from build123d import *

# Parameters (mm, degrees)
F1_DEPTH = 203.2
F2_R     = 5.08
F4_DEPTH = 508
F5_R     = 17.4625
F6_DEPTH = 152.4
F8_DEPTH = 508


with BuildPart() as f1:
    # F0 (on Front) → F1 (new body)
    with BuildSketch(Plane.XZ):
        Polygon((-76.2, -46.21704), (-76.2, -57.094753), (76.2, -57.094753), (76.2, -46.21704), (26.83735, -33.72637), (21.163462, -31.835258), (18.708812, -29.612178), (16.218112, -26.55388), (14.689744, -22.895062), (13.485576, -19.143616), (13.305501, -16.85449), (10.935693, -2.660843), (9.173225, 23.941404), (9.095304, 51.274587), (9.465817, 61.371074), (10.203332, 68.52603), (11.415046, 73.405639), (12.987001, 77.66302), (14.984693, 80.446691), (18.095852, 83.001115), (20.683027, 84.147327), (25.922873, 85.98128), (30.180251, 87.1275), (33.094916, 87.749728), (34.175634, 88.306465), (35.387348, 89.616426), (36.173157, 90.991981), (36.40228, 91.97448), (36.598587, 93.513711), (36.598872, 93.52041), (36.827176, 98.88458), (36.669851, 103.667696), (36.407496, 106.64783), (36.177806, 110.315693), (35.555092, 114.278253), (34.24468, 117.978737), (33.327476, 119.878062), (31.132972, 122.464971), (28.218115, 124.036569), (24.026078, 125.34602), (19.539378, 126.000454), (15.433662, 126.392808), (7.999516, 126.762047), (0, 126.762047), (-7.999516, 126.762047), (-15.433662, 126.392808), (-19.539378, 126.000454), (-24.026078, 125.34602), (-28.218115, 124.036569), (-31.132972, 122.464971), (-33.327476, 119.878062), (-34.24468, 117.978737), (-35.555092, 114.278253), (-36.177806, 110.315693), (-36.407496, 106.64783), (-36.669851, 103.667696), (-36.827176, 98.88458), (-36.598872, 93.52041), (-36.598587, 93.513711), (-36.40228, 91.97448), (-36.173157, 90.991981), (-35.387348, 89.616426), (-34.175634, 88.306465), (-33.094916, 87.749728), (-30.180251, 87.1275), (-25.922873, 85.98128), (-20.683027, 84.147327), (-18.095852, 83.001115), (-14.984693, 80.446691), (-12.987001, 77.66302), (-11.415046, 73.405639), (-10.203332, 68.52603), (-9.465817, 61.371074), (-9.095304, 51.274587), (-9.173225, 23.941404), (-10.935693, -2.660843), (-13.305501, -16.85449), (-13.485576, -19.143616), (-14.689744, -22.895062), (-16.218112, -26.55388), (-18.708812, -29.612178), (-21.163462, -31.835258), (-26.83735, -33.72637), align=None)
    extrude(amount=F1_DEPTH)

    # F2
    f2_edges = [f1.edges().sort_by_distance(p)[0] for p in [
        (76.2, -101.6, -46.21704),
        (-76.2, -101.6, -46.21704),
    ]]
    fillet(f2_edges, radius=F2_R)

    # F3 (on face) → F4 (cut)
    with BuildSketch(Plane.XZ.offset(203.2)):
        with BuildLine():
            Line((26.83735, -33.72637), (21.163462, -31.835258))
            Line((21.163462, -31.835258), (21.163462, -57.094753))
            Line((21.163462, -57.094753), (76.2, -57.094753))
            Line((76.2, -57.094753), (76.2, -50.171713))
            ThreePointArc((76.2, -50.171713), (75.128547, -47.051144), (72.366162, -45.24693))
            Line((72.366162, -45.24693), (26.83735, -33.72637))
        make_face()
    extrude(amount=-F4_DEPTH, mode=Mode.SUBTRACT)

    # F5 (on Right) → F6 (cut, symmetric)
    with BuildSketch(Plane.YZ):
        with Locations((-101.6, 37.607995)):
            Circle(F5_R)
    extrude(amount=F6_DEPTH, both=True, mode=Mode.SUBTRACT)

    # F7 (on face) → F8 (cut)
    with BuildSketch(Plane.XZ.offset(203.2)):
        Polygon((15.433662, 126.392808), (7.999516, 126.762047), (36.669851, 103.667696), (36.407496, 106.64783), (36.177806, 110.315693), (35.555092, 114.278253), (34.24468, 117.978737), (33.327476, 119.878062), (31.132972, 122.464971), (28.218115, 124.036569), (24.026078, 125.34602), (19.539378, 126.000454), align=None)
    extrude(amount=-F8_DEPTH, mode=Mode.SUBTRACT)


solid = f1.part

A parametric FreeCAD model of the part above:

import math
import FreeCAD as App
import Part
import Sketcher
from FreeCAD import Vector
Q = App.Units.Quantity


def edges_at(feature, points):
    """Names of the edges that pass closest to the given points."""
    edges = feature.Shape.Edges
    near = lambda p: min(range(len(edges)), key=lambda i: edges[i].distToShape(Part.Vertex(*p))[0])
    return sorted({f"Edge{near(p) + 1}" for p in points})

doc = App.newDocument("Part")
body = doc.addObject("PartDesign::Body", "Body")

# Sketch on XZ plane
sketch1 = doc.addObject("Sketcher::SketchObject", "Sketch")
body.addObject(sketch1)
sketch1.AttachmentSupport = (doc.XZ_Plane, [""])
sketch1.MapMode = "FlatFace"
sketch1.addGeometry([
    Part.LineSegment(Vector(-76.2, -46.21704, 0), Vector(-76.2, -57.094753, 0)),  # 0
    Part.LineSegment(Vector(-76.2, -57.094753, 0), Vector(76.2, -57.094753, 0)),  # 1
    Part.LineSegment(Vector(76.2, -57.094753, 0), Vector(76.2, -46.21704, 0)),  # 2
    Part.LineSegment(Vector(76.2, -46.21704, 0), Vector(26.83735, -33.72637, 0)),  # 3
    Part.LineSegment(Vector(26.83735, -33.72637, 0), Vector(21.163462, -31.835258, 0)),  # 4
    Part.LineSegment(Vector(21.163462, -31.835258, 0), Vector(18.708812, -29.612178, 0)),  # 5
    Part.LineSegment(Vector(18.708812, -29.612178, 0), Vector(16.218112, -26.55388, 0)),  # 6
    Part.LineSegment(Vector(16.218112, -26.55388, 0), Vector(14.689744, -22.895062, 0)),  # 7
    Part.LineSegment(Vector(14.689744, -22.895062, 0), Vector(13.485576, -19.143616, 0)),  # 8
    Part.LineSegment(Vector(13.485576, -19.143616, 0), Vector(13.305501, -16.85449, 0)),  # 9
    Part.LineSegment(Vector(13.305501, -16.85449, 0), Vector(10.935693, -2.660843, 0)),  # 10
    Part.LineSegment(Vector(10.935693, -2.660843, 0), Vector(9.173225, 23.941404, 0)),  # 11
    Part.LineSegment(Vector(9.173225, 23.941404, 0), Vector(9.095304, 51.274587, 0)),  # 12
    Part.LineSegment(Vector(9.095304, 51.274587, 0), Vector(9.465817, 61.371074, 0)),  # 13
    Part.LineSegment(Vector(9.465817, 61.371074, 0), Vector(10.203332, 68.52603, 0)),  # 14
    Part.LineSegment(Vector(10.203332, 68.52603, 0), Vector(11.415046, 73.405639, 0)),  # 15
    Part.LineSegment(Vector(11.415046, 73.405639, 0), Vector(12.987001, 77.66302, 0)),  # 16
    Part.LineSegment(Vector(12.987001, 77.66302, 0), Vector(14.984693, 80.446691, 0)),  # 17
    Part.LineSegment(Vector(14.984693, 80.446691, 0), Vector(18.095852, 83.001115, 0)),  # 18
    Part.LineSegment(Vector(18.095852, 83.001115, 0), Vector(20.683027, 84.147327, 0)),  # 19
    Part.LineSegment(Vector(20.683027, 84.147327, 0), Vector(25.922873, 85.98128, 0)),  # 20
    Part.LineSegment(Vector(25.922873, 85.98128, 0), Vector(30.180251, 87.1275, 0)),  # 21
    Part.LineSegment(Vector(30.180251, 87.1275, 0), Vector(33.094916, 87.749728, 0)),  # 22
    Part.LineSegment(Vector(33.094916, 87.749728, 0), Vector(34.175634, 88.306465, 0)),  # 23
    Part.LineSegment(Vector(34.175634, 88.306465, 0), Vector(35.387348, 89.616426, 0)),  # 24
    Part.LineSegment(Vector(35.387348, 89.616426, 0), Vector(36.173157, 90.991981, 0)),  # 25
    Part.LineSegment(Vector(36.173157, 90.991981, 0), Vector(36.40228, 91.97448, 0)),  # 26
    Part.LineSegment(Vector(36.40228, 91.97448, 0), Vector(36.598587, 93.513711, 0)),  # 27
    Part.LineSegment(Vector(36.598587, 93.513711, 0), Vector(36.598872, 93.52041, 0)),  # 28
    Part.LineSegment(Vector(36.598872, 93.52041, 0), Vector(36.827176, 98.88458, 0)),  # 29
    Part.LineSegment(Vector(36.827176, 98.88458, 0), Vector(36.669851, 103.667696, 0)),  # 30
    Part.LineSegment(Vector(36.669851, 103.667696, 0), Vector(36.407496, 106.64783, 0)),  # 31
    Part.LineSegment(Vector(36.407496, 106.64783, 0), Vector(36.177806, 110.315693, 0)),  # 32
    Part.LineSegment(Vector(36.177806, 110.315693, 0), Vector(35.555092, 114.278253, 0)),  # 33
    Part.LineSegment(Vector(35.555092, 114.278253, 0), Vector(34.24468, 117.978737, 0)),  # 34
    Part.LineSegment(Vector(34.24468, 117.978737, 0), Vector(33.327476, 119.878062, 0)),  # 35
    Part.LineSegment(Vector(33.327476, 119.878062, 0), Vector(31.132972, 122.464971, 0)),  # 36
    Part.LineSegment(Vector(31.132972, 122.464971, 0), Vector(28.218115, 124.036569, 0)),  # 37
    Part.LineSegment(Vector(28.218115, 124.036569, 0), Vector(24.026078, 125.34602, 0)),  # 38
    Part.LineSegment(Vector(24.026078, 125.34602, 0), Vector(19.539378, 126.000454, 0)),  # 39
    Part.LineSegment(Vector(19.539378, 126.000454, 0), Vector(15.433662, 126.392808, 0)),  # 40
    Part.LineSegment(Vector(15.433662, 126.392808, 0), Vector(7.999516, 126.762047, 0)),  # 41
    Part.LineSegment(Vector(7.999516, 126.762047, 0), Vector(-7.999516, 126.762047, 0)),  # 42
    Part.LineSegment(Vector(-7.999516, 126.762047, 0), Vector(-15.433662, 126.392808, 0)),  # 43
    Part.LineSegment(Vector(-15.433662, 126.392808, 0), Vector(-19.539378, 126.000454, 0)),  # 44
    Part.LineSegment(Vector(-19.539378, 126.000454, 0), Vector(-24.026078, 125.34602, 0)),  # 45
    Part.LineSegment(Vector(-24.026078, 125.34602, 0), Vector(-28.218115, 124.036569, 0)),  # 46
    Part.LineSegment(Vector(-28.218115, 124.036569, 0), Vector(-31.132972, 122.464971, 0)),  # 47
    Part.LineSegment(Vector(-31.132972, 122.464971, 0), Vector(-33.327476, 119.878062, 0)),  # 48
    Part.LineSegment(Vector(-33.327476, 119.878062, 0), Vector(-34.24468, 117.978737, 0)),  # 49
    Part.LineSegment(Vector(-34.24468, 117.978737, 0), Vector(-35.555092, 114.278253, 0)),  # 50
    Part.LineSegment(Vector(-35.555092, 114.278253, 0), Vector(-36.177806, 110.315693, 0)),  # 51
    Part.LineSegment(Vector(-36.177806, 110.315693, 0), Vector(-36.407496, 106.64783, 0)),  # 52
    Part.LineSegment(Vector(-36.407496, 106.64783, 0), Vector(-36.669851, 103.667696, 0)),  # 53
    Part.LineSegment(Vector(-36.669851, 103.667696, 0), Vector(-36.827176, 98.88458, 0)),  # 54
    Part.LineSegment(Vector(-36.827176, 98.88458, 0), Vector(-36.598872, 93.52041, 0)),  # 55
    Part.LineSegment(Vector(-36.598872, 93.52041, 0), Vector(-36.598587, 93.513711, 0)),  # 56
    Part.LineSegment(Vector(-36.598587, 93.513711, 0), Vector(-36.40228, 91.97448, 0)),  # 57
    Part.LineSegment(Vector(-36.40228, 91.97448, 0), Vector(-36.173157, 90.991981, 0)),  # 58
    Part.LineSegment(Vector(-36.173157, 90.991981, 0), Vector(-35.387348, 89.616426, 0)),  # 59
    Part.LineSegment(Vector(-35.387348, 89.616426, 0), Vector(-34.175634, 88.306465, 0)),  # 60
    Part.LineSegment(Vector(-34.175634, 88.306465, 0), Vector(-33.094916, 87.749728, 0)),  # 61
    Part.LineSegment(Vector(-33.094916, 87.749728, 0), Vector(-30.180251, 87.1275, 0)),  # 62
    Part.LineSegment(Vector(-30.180251, 87.1275, 0), Vector(-25.922873, 85.98128, 0)),  # 63
    Part.LineSegment(Vector(-25.922873, 85.98128, 0), Vector(-20.683027, 84.147327, 0)),  # 64
    Part.LineSegment(Vector(-20.683027, 84.147327, 0), Vector(-18.095852, 83.001115, 0)),  # 65
    Part.LineSegment(Vector(-18.095852, 83.001115, 0), Vector(-14.984693, 80.446691, 0)),  # 66
    Part.LineSegment(Vector(-14.984693, 80.446691, 0), Vector(-12.987001, 77.66302, 0)),  # 67
    Part.LineSegment(Vector(-12.987001, 77.66302, 0), Vector(-11.415046, 73.405639, 0)),  # 68
    Part.LineSegment(Vector(-11.415046, 73.405639, 0), Vector(-10.203332, 68.52603, 0)),  # 69
    Part.LineSegment(Vector(-10.203332, 68.52603, 0), Vector(-9.465817, 61.371074, 0)),  # 70
    Part.LineSegment(Vector(-9.465817, 61.371074, 0), Vector(-9.095304, 51.274587, 0)),  # 71
    Part.LineSegment(Vector(-9.095304, 51.274587, 0), Vector(-9.173225, 23.941404, 0)),  # 72
    Part.LineSegment(Vector(-9.173225, 23.941404, 0), Vector(-10.935693, -2.660843, 0)),  # 73
    Part.LineSegment(Vector(-10.935693, -2.660843, 0), Vector(-13.305501, -16.85449, 0)),  # 74
    Part.LineSegment(Vector(-13.305501, -16.85449, 0), Vector(-13.485576, -19.143616, 0)),  # 75
    Part.LineSegment(Vector(-13.485576, -19.143616, 0), Vector(-14.689744, -22.895062, 0)),  # 76
    Part.LineSegment(Vector(-14.689744, -22.895062, 0), Vector(-16.218112, -26.55388, 0)),  # 77
    Part.LineSegment(Vector(-16.218112, -26.55388, 0), Vector(-18.708812, -29.612178, 0)),  # 78
    Part.LineSegment(Vector(-18.708812, -29.612178, 0), Vector(-21.163462, -31.835258, 0)),  # 79
    Part.LineSegment(Vector(-21.163462, -31.835258, 0), Vector(-26.83735, -33.72637, 0)),  # 80
    Part.LineSegment(Vector(-26.83735, -33.72637, 0), Vector(-76.2, -46.21704, 0)),  # 81
], False)
sketch1.addConstraint([
    Sketcher.Constraint("Coincident", 0, 2, 1, 1),
    Sketcher.Constraint("Coincident", 1, 2, 2, 1),
    Sketcher.Constraint("Coincident", 2, 2, 3, 1),
    Sketcher.Constraint("Coincident", 3, 2, 4, 1),
    Sketcher.Constraint("Coincident", 4, 2, 5, 1),
    Sketcher.Constraint("Coincident", 5, 2, 6, 1),
    Sketcher.Constraint("Coincident", 6, 2, 7, 1),
    Sketcher.Constraint("Coincident", 7, 2, 8, 1),
    Sketcher.Constraint("Coincident", 8, 2, 9, 1),
    Sketcher.Constraint("Coincident", 9, 2, 10, 1),
    Sketcher.Constraint("Coincident", 10, 2, 11, 1),
    Sketcher.Constraint("Coincident", 11, 2, 12, 1),
    Sketcher.Constraint("Coincident", 12, 2, 13, 1),
    Sketcher.Constraint("Coincident", 13, 2, 14, 1),
    Sketcher.Constraint("Coincident", 14, 2, 15, 1),
    Sketcher.Constraint("Coincident", 15, 2, 16, 1),
    Sketcher.Constraint("Coincident", 16, 2, 17, 1),
    Sketcher.Constraint("Coincident", 17, 2, 18, 1),
    Sketcher.Constraint("Coincident", 18, 2, 19, 1),
    Sketcher.Constraint("Coincident", 19, 2, 20, 1),
    Sketcher.Constraint("Coincident", 20, 2, 21, 1),
    Sketcher.Constraint("Coincident", 21, 2, 22, 1),
    Sketcher.Constraint("Coincident", 22, 2, 23, 1),
    Sketcher.Constraint("Coincident", 23, 2, 24, 1),
    Sketcher.Constraint("Coincident", 24, 2, 25, 1),
    Sketcher.Constraint("Coincident", 25, 2, 26, 1),
    Sketcher.Constraint("Coincident", 26, 2, 27, 1),
    Sketcher.Constraint("Coincident", 27, 2, 28, 1),
    Sketcher.Constraint("Coincident", 28, 2, 29, 1),
    Sketcher.Constraint("Coincident", 29, 2, 30, 1),
    Sketcher.Constraint("Coincident", 30, 2, 31, 1),
    Sketcher.Constraint("Coincident", 31, 2, 32, 1),
    Sketcher.Constraint("Coincident", 32, 2, 33, 1),
    Sketcher.Constraint("Coincident", 33, 2, 34, 1),
    Sketcher.Constraint("Coincident", 34, 2, 35, 1),
    Sketcher.Constraint("Coincident", 35, 2, 36, 1),
    Sketcher.Constraint("Coincident", 36, 2, 37, 1),
    Sketcher.Constraint("Coincident", 37, 2, 38, 1),
    Sketcher.Constraint("Coincident", 38, 2, 39, 1),
    Sketcher.Constraint("Coincident", 39, 2, 40, 1),
    Sketcher.Constraint("Coincident", 40, 2, 41, 1),
    Sketcher.Constraint("Coincident", 41, 2, 42, 1),
    Sketcher.Constraint("Coincident", 42, 2, 43, 1),
    Sketcher.Constraint("Coincident", 43, 2, 44, 1),
    Sketcher.Constraint("Coincident", 44, 2, 45, 1),
    Sketcher.Constraint("Coincident", 45, 2, 46, 1),
    Sketcher.Constraint("Coincident", 46, 2, 47, 1),
    Sketcher.Constraint("Coincident", 47, 2, 48, 1),
    Sketcher.Constraint("Coincident", 48, 2, 49, 1),
    Sketcher.Constraint("Coincident", 49, 2, 50, 1),
    Sketcher.Constraint("Coincident", 50, 2, 51, 1),
    Sketcher.Constraint("Coincident", 51, 2, 52, 1),
    Sketcher.Constraint("Coincident", 52, 2, 53, 1),
    Sketcher.Constraint("Coincident", 53, 2, 54, 1),
    Sketcher.Constraint("Coincident", 54, 2, 55, 1),
    Sketcher.Constraint("Coincident", 55, 2, 56, 1),
    Sketcher.Constraint("Coincident", 56, 2, 57, 1),
    Sketcher.Constraint("Coincident", 57, 2, 58, 1),
    Sketcher.Constraint("Coincident", 58, 2, 59, 1),
    Sketcher.Constraint("Coincident", 59, 2, 60, 1),
    Sketcher.Constraint("Coincident", 60, 2, 61, 1),
    Sketcher.Constraint("Coincident", 61, 2, 62, 1),
    Sketcher.Constraint("Coincident", 62, 2, 63, 1),
    Sketcher.Constraint("Coincident", 63, 2, 64, 1),
    Sketcher.Constraint("Coincident", 64, 2, 65, 1),
    Sketcher.Constraint("Coincident", 65, 2, 66, 1),
    Sketcher.Constraint("Coincident", 66, 2, 67, 1),
    Sketcher.Constraint("Coincident", 67, 2, 68, 1),
    Sketcher.Constraint("Coincident", 68, 2, 69, 1),
    Sketcher.Constraint("Coincident", 69, 2, 70, 1),
    Sketcher.Constraint("Coincident", 70, 2, 71, 1),
    Sketcher.Constraint("Coincident", 71, 2, 72, 1),
    Sketcher.Constraint("Coincident", 72, 2, 73, 1),
    Sketcher.Constraint("Coincident", 73, 2, 74, 1),
    Sketcher.Constraint("Coincident", 74, 2, 75, 1),
    Sketcher.Constraint("Coincident", 75, 2, 76, 1),
    Sketcher.Constraint("Coincident", 76, 2, 77, 1),
    Sketcher.Constraint("Coincident", 77, 2, 78, 1),
    Sketcher.Constraint("Coincident", 78, 2, 79, 1),
    Sketcher.Constraint("Coincident", 79, 2, 80, 1),
    Sketcher.Constraint("Coincident", 80, 2, 81, 1),
    Sketcher.Constraint("Coincident", 81, 2, 0, 1),
    Sketcher.Constraint("Vertical", 0),
    Sketcher.Constraint("Horizontal", 1),
    Sketcher.Constraint("Vertical", 2),
    Sketcher.Constraint("Horizontal", 42),
    Sketcher.Constraint("Symmetric", 40, 2, 43, 2, -2),
    Sketcher.Constraint("Symmetric", 39, 2, 44, 2, -2),
    Sketcher.Constraint("Symmetric", 38, 2, 45, 2, -2),
    Sketcher.Constraint("Symmetric", 37, 2, 46, 2, -2),
    Sketcher.Constraint("Symmetric", 36, 2, 47, 2, -2),
    Sketcher.Constraint("Symmetric", 35, 2, 48, 2, -2),
    Sketcher.Constraint("Symmetric", 34, 2, 49, 2, -2),
    Sketcher.Constraint("Symmetric", 33, 2, 50, 2, -2),
    Sketcher.Constraint("Symmetric", 32, 2, 51, 2, -2),
    Sketcher.Constraint("Symmetric", 31, 2, 52, 2, -2),
    Sketcher.Constraint("Symmetric", 30, 2, 53, 2, -2),
    Sketcher.Constraint("Symmetric", 29, 2, 54, 2, -2),
    Sketcher.Constraint("Symmetric", 28, 2, 55, 2, -2),
    Sketcher.Constraint("Symmetric", 27, 2, 56, 2, -2),
    Sketcher.Constraint("Symmetric", 26, 2, 57, 2, -2),
    Sketcher.Constraint("Symmetric", 25, 2, 58, 2, -2),
    Sketcher.Constraint("Symmetric", 24, 2, 59, 2, -2),
    Sketcher.Constraint("Symmetric", 23, 2, 60, 2, -2),
    Sketcher.Constraint("Symmetric", 22, 2, 61, 2, -2),
    Sketcher.Constraint("Symmetric", 21, 2, 62, 2, -2),
    Sketcher.Constraint("Symmetric", 20, 2, 63, 2, -2),
    Sketcher.Constraint("Symmetric", 19, 2, 64, 2, -2),
    Sketcher.Constraint("Symmetric", 18, 2, 65, 2, -2),
    Sketcher.Constraint("Symmetric", 17, 2, 66, 2, -2),
    Sketcher.Constraint("Symmetric", 16, 2, 67, 2, -2),
    Sketcher.Constraint("Symmetric", 15, 2, 68, 2, -2),
    Sketcher.Constraint("Symmetric", 14, 2, 69, 2, -2),
    Sketcher.Constraint("Symmetric", 13, 2, 70, 2, -2),
    Sketcher.Constraint("Symmetric", 12, 2, 71, 2, -2),
    Sketcher.Constraint("Symmetric", 11, 2, 72, 2, -2),
    Sketcher.Constraint("Symmetric", 10, 2, 73, 2, -2),
    Sketcher.Constraint("Symmetric", 9, 2, 74, 2, -2),
    Sketcher.Constraint("Symmetric", 8, 2, 75, 2, -2),
    Sketcher.Constraint("Symmetric", 7, 2, 76, 2, -2),
    Sketcher.Constraint("Symmetric", 6, 2, 77, 2, -2),
    Sketcher.Constraint("Symmetric", 5, 2, 78, 2, -2),
    Sketcher.Constraint("Symmetric", 4, 2, 79, 2, -2),
    Sketcher.Constraint("Symmetric", 3, 2, 80, 2, -2),
    Sketcher.Constraint("Symmetric", 2, 2, 81, 2, -2),
    Sketcher.Constraint("Equal", 41, 43),
    Sketcher.Constraint("DistanceX", 1, 1, 1, 2, Q("6 in")),
    Sketcher.Constraint("Angle", 3, Q("165.800001 deg")),
    Sketcher.Constraint("Distance", 27, Q("1.551699 mm")),
    Sketcher.Constraint("DistanceX", -1, 1, 9, 2, Q("13.305501 mm")),
    Sketcher.Constraint("DistanceX", -1, 1, 16, 2, Q("12.987001 mm")),
    Sketcher.Constraint("DistanceY", -1, 1, 21, 2, Q("87.1275 mm")),
    Sketcher.Constraint("Distance", 8, Q("3.939971 mm")),
    Sketcher.Constraint("Distance", 10, Q("14.390122 mm")),
    Sketcher.Constraint("Distance", 16, Q("4.538319 mm")),
    Sketcher.Constraint("Distance", 17, Q("3.42631 mm")),
    Sketcher.Constraint("Distance", 20, Q("5.55152 mm")),
    Sketcher.Constraint("Distance", 21, Q("4.408978 mm")),
    Sketcher.Constraint("Distance", 26, Q("1.008862 mm")),
    Sketcher.Constraint("Distance", 31, Q("2.99166 mm")),
    Sketcher.Constraint("Distance", 33, Q("4.011191 mm")),
    Sketcher.Constraint("Distance", 38, Q("4.391792 mm")),
    Sketcher.Constraint("Distance", 40, Q("4.124421 mm")),
    Sketcher.Constraint("Distance", 41, Q("7.44331 mm")),
    Sketcher.Constraint("DistanceX", 42, 2, 42, 1, Q("15.999032 mm")),
    Sketcher.Constraint("DistanceY", 0, 2, 0, 1, Q("10.877713 mm")),
    Sketcher.Constraint("DistanceY", 2, 2, -1, 1, Q("46.21704 mm")),
    Sketcher.Constraint("DistanceX", -1, 1, 3, 2, Q("26.83735 mm")),
    Sketcher.Constraint("DistanceX", -1, 1, 4, 2, Q("21.163462 mm")),
    Sketcher.Constraint("DistanceY", 5, 2, -1, 1, Q("29.612178 mm")),
    Sketcher.Constraint("DistanceY", 6, 2, -1, 1, Q("26.55388 mm")),
    Sketcher.Constraint("DistanceY", 7, 2, -1, 1, Q("22.895062 mm")),
    Sketcher.Constraint("DistanceY", 9, 2, -1, 1, Q("16.85449 mm")),
    Sketcher.Constraint("DistanceY", -1, 1, 14, 2, Q("68.52603 mm")),
    Sketcher.Constraint("DistanceY", -1, 1, 15, 2, Q("73.405639 mm")),
    Sketcher.Constraint("DistanceY", -1, 1, 16, 2, Q("77.66302 mm")),
    Sketcher.Constraint("DistanceY", -1, 1, 17, 2, Q("80.446691 mm")),
    Sketcher.Constraint("DistanceY", -1, 1, 20, 2, Q("85.98128 mm")),
    Sketcher.Constraint("DistanceX", -1, 1, 21, 2, Q("30.180251 mm")),
    Sketcher.Constraint("DistanceY", -1, 1, 22, 2, Q("87.749728 mm")),
    Sketcher.Constraint("DistanceX", -1, 1, 24, 2, Q("35.387348 mm")),
    Sketcher.Constraint("DistanceY", -1, 1, 25, 2, Q("90.991981 mm")),
    Sketcher.Constraint("DistanceX", -1, 1, 26, 2, Q("36.40228 mm")),
    Sketcher.Constraint("DistanceY", -1, 1, 26, 2, Q("91.97448 mm")),
    Sketcher.Constraint("DistanceY", -1, 1, 27, 2, Q("93.513711 mm")),
    Sketcher.Constraint("DistanceY", -1, 1, 28, 2, Q("93.52041 mm")),
    Sketcher.Constraint("DistanceY", -1, 1, 29, 2, Q("98.88458 mm")),
    Sketcher.Constraint("DistanceX", -1, 1, 30, 2, Q("36.669851 mm")),
    Sketcher.Constraint("DistanceY", -1, 1, 31, 2, Q("106.64783 mm")),
    Sketcher.Constraint("DistanceX", -1, 1, 34, 2, Q("34.24468 mm")),
    Sketcher.Constraint("DistanceY", -1, 1, 35, 2, Q("119.878062 mm")),
    Sketcher.Constraint("DistanceX", -1, 1, 36, 2, Q("31.132972 mm")),
    Sketcher.Constraint("DistanceY", -1, 1, 36, 2, Q("122.464971 mm")),
    Sketcher.Constraint("DistanceY", -1, 1, 37, 2, Q("124.036569 mm")),
    Sketcher.Constraint("DistanceY", -1, 1, 38, 2, Q("125.34602 mm")),
    Sketcher.Constraint("DistanceY", -1, 1, 40, 2, Q("126.392808 mm")),
    Sketcher.Constraint("Distance", 4, Q("5.980745 mm")),
    Sketcher.Constraint("Distance", 5, Q("3.311705 mm")),
    Sketcher.Constraint("Distance", 6, Q("3.944208 mm")),
    Sketcher.Constraint("Distance", 7, Q("3.965206 mm")),
    Sketcher.Constraint("Distance", 9, Q("2.296198 mm")),
    Sketcher.Constraint("Distance", 11, Q("26.660567 mm")),
    Sketcher.Constraint("Distance", 12, Q("27.333294 mm")),
    Sketcher.Constraint("Distance", 13, Q("10.103283 mm")),
    Sketcher.Constraint("Distance", 14, Q("7.192866 mm")),
    Sketcher.Constraint("Distance", 15, Q("5.027806 mm")),
    Sketcher.Constraint("Distance", 18, Q("4.025468 mm")),
    Sketcher.Constraint("Distance", 19, Q("2.829713 mm")),
    Sketcher.Constraint("Distance", 22, Q("2.980342 mm")),
    Sketcher.Constraint("Distance", 23, Q("1.215692 mm")),
    Sketcher.Constraint("Distance", 24, Q("1.784446 mm")),
    Sketcher.Constraint("Distance", 25, Q("1.584187 mm")),
    Sketcher.Constraint("Distance", 28, Q("0.006705 mm")),
    Sketcher.Constraint("Distance", 29, Q("5.369026 mm")),
    Sketcher.Constraint("Distance", 30, Q("4.785703 mm")),
    Sketcher.Constraint("Distance", 32, Q("3.675048 mm")),
    Sketcher.Constraint("Distance", 34, Q("3.925654 mm")),
    Sketcher.Constraint("Distance", 35, Q("2.109194 mm")),
    Sketcher.Constraint("Distance", 36, Q("3.392336 mm")),
    Sketcher.Constraint("Distance", 37, Q("3.311542 mm")),
    Sketcher.Constraint("Distance", 39, Q("4.534177 mm")),
    Sketcher.Constraint("DistanceX", -1, 1, 10, 2, Q("10.935693 mm")),
    Sketcher.Constraint("DistanceX", -1, 1, 11, 2, Q("9.173225 mm")),
    Sketcher.Constraint("DistanceX", -1, 1, 12, 2, Q("9.095304 mm")),
    Sketcher.Constraint("DistanceX", -1, 1, 18, 2, Q("18.095852 mm")),
    Sketcher.Constraint("DistanceX", -1, 1, 32, 2, Q("36.177806 mm")),
    Sketcher.Constraint("DistanceX", -1, 1, 39, 2, Q("19.539378 mm")),
])
pad1 = doc.addObject("PartDesign::Pad", "Pad")
body.addObject(pad1)
pad1.Profile = sketch1
pad1.Length = Q("8 in")
doc.recompute()

fillet = doc.addObject("PartDesign::Fillet", "Fillet")
body.addObject(fillet)
fillet.Base = (pad1, edges_at(pad1, [(76.2, -101.6, -46.217), (-76.2, -101.6, -46.217)]))
fillet.Radius = Q("0.2 in")

# Sketch on XZ plane
sketch2 = doc.addObject("Sketcher::SketchObject", "Sketch001")
body.addObject(sketch2)
sketch2.AttachmentSupport = (doc.XZ_Plane, [""])
sketch2.MapMode = "FlatFace"
sketch2.AttachmentOffset = App.Placement(Vector(0, 0, 8 * 25.4), App.Rotation())
sketch2.addGeometry([
    Part.LineSegment(Vector(26.83735, -33.72637, 0), Vector(21.163462, -31.835258, 0)),  # 0
    Part.LineSegment(Vector(21.163462, -31.835258, 0), Vector(21.163462, -57.094753, 0)),  # 1
    Part.LineSegment(Vector(21.163462, -57.094753, 0), Vector(76.2, -57.094753, 0)),  # 2
    Part.LineSegment(Vector(76.2, -57.094753, 0), Vector(76.2, -50.171713, 0)),  # 3
    Part.ArcOfCircle(Part.Circle(Vector(71.119998, -50.171714, 0), Vector(0, 0, 1), 5.080002), math.radians(0.000007), math.radians(75.799979)),  # 4
    Part.LineSegment(Vector(72.366162, -45.24693, 0), Vector(26.83735, -33.72637, 0)),  # 5
], False)
sketch2.addConstraint([
    Sketcher.Constraint("Coincident", 0, 2, 1, 1),
    Sketcher.Constraint("Coincident", 1, 2, 2, 1),
    Sketcher.Constraint("Coincident", 2, 2, 3, 1),
    Sketcher.Constraint("Tangent", 3, 2, 4, 1),
    Sketcher.Constraint("Tangent", 4, 2, 5, 1),
    Sketcher.Constraint("Coincident", 5, 2, 0, 1),
    Sketcher.Constraint("Vertical", 1),
    Sketcher.Constraint("Horizontal", 2),
    Sketcher.Constraint("Vertical", 3),
    Sketcher.Constraint("Radius", 4, Q("0.2000001 in")),
    Sketcher.Constraint("DistanceX", -1, 1, 2, 2, Q("3 in")),
    Sketcher.Constraint("Angle", 5, Q("165.800001 deg")),
    Sketcher.Constraint("DistanceX", 2, 1, 2, 2, Q("55.036538 mm")),
    Sketcher.Constraint("DistanceY", 3, 1, 3, 2, Q("6.92304 mm")),
    Sketcher.Constraint("DistanceY", 1, 2, 1, 1, Q("25.259495 mm")),
    Sketcher.Constraint("DistanceY", 4, 2, -1, 1, Q("45.24693 mm")),
    Sketcher.Constraint("DistanceX", -1, 1, 5, 2, Q("26.83735 mm")),
])
pocket1 = doc.addObject("PartDesign::Pocket", "Pocket")
body.addObject(pocket1)
pocket1.Profile = sketch2
pocket1.Length = Q("20 in")

# Sketch on YZ plane
sketch3 = doc.addObject("Sketcher::SketchObject", "Sketch002")
body.addObject(sketch3)
sketch3.AttachmentSupport = (doc.YZ_Plane, [""])
sketch3.MapMode = "FlatFace"
sketch3.addGeometry(Part.Circle(Vector(-101.6, 37.607995, 0), Vector(0, 0, 1), 17.4625), False)
sketch3.addConstraint([
    Sketcher.Constraint("Diameter", 0, Q("1.375 in")),
    Sketcher.Constraint("DistanceX", 0, 3, -1, 1, Q("4 in")),
    Sketcher.Constraint("DistanceY", -1, 1, 0, 3, Q("37.607995 mm")),
])
pocket2 = doc.addObject("PartDesign::Pocket", "Pocket001")
body.addObject(pocket2)
pocket2.Profile = sketch3
pocket2.Length = Q("12 in")
pocket2.Midplane = True

# Sketch on XZ plane
sketch4 = doc.addObject("Sketcher::SketchObject", "Sketch003")
body.addObject(sketch4)
sketch4.AttachmentSupport = (doc.XZ_Plane, [""])
sketch4.MapMode = "FlatFace"
sketch4.AttachmentOffset = App.Placement(Vector(0, 0, 8 * 25.4), App.Rotation())
sketch4.addGeometry([
    Part.LineSegment(Vector(15.433662, 126.392808, 0), Vector(7.999516, 126.762047, 0)),  # 0
    Part.LineSegment(Vector(7.999516, 126.762047, 0), Vector(36.669851, 103.667696, 0)),  # 1
    Part.LineSegment(Vector(36.669851, 103.667696, 0), Vector(36.407496, 106.64783, 0)),  # 2
    Part.LineSegment(Vector(36.407496, 106.64783, 0), Vector(36.177806, 110.315693, 0)),  # 3
    Part.LineSegment(Vector(36.177806, 110.315693, 0), Vector(35.555092, 114.278253, 0)),  # 4
    Part.LineSegment(Vector(35.555092, 114.278253, 0), Vector(34.24468, 117.978737, 0)),  # 5
    Part.LineSegment(Vector(34.24468, 117.978737, 0), Vector(33.327476, 119.878062, 0)),  # 6
    Part.LineSegment(Vector(33.327476, 119.878062, 0), Vector(31.132972, 122.464971, 0)),  # 7
    Part.LineSegment(Vector(31.132972, 122.464971, 0), Vector(28.218115, 124.036569, 0)),  # 8
    Part.LineSegment(Vector(28.218115, 124.036569, 0), Vector(24.026078, 125.34602, 0)),  # 9
    Part.LineSegment(Vector(24.026078, 125.34602, 0), Vector(19.539378, 126.000454, 0)),  # 10
    Part.LineSegment(Vector(19.539378, 126.000454, 0), Vector(15.433662, 126.392808, 0)),  # 11
], False)
sketch4.addConstraint([
    Sketcher.Constraint("Coincident", 0, 2, 1, 1),
    Sketcher.Constraint("Coincident", 1, 2, 2, 1),
    Sketcher.Constraint("Coincident", 2, 2, 3, 1),
    Sketcher.Constraint("Coincident", 3, 2, 4, 1),
    Sketcher.Constraint("Coincident", 4, 2, 5, 1),
    Sketcher.Constraint("Coincident", 5, 2, 6, 1),
    Sketcher.Constraint("Coincident", 6, 2, 7, 1),
    Sketcher.Constraint("Coincident", 7, 2, 8, 1),
    Sketcher.Constraint("Coincident", 8, 2, 9, 1),
    Sketcher.Constraint("Coincident", 9, 2, 10, 1),
    Sketcher.Constraint("Coincident", 10, 2, 11, 1),
    Sketcher.Constraint("Coincident", 11, 2, 0, 1),
    Sketcher.Constraint("DistanceX", 10, 2, 9, 2, Q("4.4867 mm")),
    Sketcher.Constraint("Distance", 0, Q("7.44331 mm")),
    Sketcher.Constraint("Distance", 2, Q("2.99166 mm")),
    Sketcher.Constraint("Distance", 4, Q("4.011191 mm")),
    Sketcher.Constraint("Distance", 9, Q("4.391792 mm")),
    Sketcher.Constraint("Distance", 11, Q("4.124421 mm")),
    Sketcher.Constraint("DistanceX", -1, 1, 1, 2, Q("36.669851 mm")),
    Sketcher.Constraint("DistanceY", -1, 1, 2, 2, Q("106.64783 mm")),
    Sketcher.Constraint("DistanceX", -1, 1, 5, 2, Q("34.24468 mm")),
    Sketcher.Constraint("DistanceY", -1, 1, 6, 2, Q("119.878062 mm")),
    Sketcher.Constraint("DistanceX", -1, 1, 7, 2, Q("31.132972 mm")),
    Sketcher.Constraint("DistanceY", -1, 1, 7, 2, Q("122.464971 mm")),
    Sketcher.Constraint("DistanceY", -1, 1, 8, 2, Q("124.036569 mm")),
    Sketcher.Constraint("DistanceY", -1, 1, 9, 2, Q("125.34602 mm")),
    Sketcher.Constraint("DistanceY", -1, 1, 11, 2, Q("126.392808 mm")),
    Sketcher.Constraint("DistanceY", 1, 2, 0, 2, Q("23.094351 mm")),
    Sketcher.Constraint("DistanceX", 0, 2, 2, 2, Q("28.40798 mm")),
    Sketcher.Constraint("DistanceX", 3, 2, 2, 2, Q("0.22969 mm")),
    Sketcher.Constraint("DistanceY", 3, 2, 4, 2, Q("3.96256 mm")),
    Sketcher.Constraint("DistanceX", 4, 2, 1, 2, Q("1.114759 mm")),
    Sketcher.Constraint("DistanceY", 1, 2, 5, 2, Q("14.311041 mm")),
    Sketcher.Constraint("DistanceY", 4, 2, 6, 2, Q("5.599809 mm")),
    Sketcher.Constraint("DistanceX", 6, 2, 3, 2, Q("2.85033 mm")),
    Sketcher.Constraint("DistanceX", 8, 2, 6, 2, Q("5.109361 mm")),
])
pocket3 = doc.addObject("PartDesign::Pocket", "Pocket002")
body.addObject(pocket3)
pocket3.Profile = sketch4
pocket3.Length = Q("20 in")

doc.recompute()
